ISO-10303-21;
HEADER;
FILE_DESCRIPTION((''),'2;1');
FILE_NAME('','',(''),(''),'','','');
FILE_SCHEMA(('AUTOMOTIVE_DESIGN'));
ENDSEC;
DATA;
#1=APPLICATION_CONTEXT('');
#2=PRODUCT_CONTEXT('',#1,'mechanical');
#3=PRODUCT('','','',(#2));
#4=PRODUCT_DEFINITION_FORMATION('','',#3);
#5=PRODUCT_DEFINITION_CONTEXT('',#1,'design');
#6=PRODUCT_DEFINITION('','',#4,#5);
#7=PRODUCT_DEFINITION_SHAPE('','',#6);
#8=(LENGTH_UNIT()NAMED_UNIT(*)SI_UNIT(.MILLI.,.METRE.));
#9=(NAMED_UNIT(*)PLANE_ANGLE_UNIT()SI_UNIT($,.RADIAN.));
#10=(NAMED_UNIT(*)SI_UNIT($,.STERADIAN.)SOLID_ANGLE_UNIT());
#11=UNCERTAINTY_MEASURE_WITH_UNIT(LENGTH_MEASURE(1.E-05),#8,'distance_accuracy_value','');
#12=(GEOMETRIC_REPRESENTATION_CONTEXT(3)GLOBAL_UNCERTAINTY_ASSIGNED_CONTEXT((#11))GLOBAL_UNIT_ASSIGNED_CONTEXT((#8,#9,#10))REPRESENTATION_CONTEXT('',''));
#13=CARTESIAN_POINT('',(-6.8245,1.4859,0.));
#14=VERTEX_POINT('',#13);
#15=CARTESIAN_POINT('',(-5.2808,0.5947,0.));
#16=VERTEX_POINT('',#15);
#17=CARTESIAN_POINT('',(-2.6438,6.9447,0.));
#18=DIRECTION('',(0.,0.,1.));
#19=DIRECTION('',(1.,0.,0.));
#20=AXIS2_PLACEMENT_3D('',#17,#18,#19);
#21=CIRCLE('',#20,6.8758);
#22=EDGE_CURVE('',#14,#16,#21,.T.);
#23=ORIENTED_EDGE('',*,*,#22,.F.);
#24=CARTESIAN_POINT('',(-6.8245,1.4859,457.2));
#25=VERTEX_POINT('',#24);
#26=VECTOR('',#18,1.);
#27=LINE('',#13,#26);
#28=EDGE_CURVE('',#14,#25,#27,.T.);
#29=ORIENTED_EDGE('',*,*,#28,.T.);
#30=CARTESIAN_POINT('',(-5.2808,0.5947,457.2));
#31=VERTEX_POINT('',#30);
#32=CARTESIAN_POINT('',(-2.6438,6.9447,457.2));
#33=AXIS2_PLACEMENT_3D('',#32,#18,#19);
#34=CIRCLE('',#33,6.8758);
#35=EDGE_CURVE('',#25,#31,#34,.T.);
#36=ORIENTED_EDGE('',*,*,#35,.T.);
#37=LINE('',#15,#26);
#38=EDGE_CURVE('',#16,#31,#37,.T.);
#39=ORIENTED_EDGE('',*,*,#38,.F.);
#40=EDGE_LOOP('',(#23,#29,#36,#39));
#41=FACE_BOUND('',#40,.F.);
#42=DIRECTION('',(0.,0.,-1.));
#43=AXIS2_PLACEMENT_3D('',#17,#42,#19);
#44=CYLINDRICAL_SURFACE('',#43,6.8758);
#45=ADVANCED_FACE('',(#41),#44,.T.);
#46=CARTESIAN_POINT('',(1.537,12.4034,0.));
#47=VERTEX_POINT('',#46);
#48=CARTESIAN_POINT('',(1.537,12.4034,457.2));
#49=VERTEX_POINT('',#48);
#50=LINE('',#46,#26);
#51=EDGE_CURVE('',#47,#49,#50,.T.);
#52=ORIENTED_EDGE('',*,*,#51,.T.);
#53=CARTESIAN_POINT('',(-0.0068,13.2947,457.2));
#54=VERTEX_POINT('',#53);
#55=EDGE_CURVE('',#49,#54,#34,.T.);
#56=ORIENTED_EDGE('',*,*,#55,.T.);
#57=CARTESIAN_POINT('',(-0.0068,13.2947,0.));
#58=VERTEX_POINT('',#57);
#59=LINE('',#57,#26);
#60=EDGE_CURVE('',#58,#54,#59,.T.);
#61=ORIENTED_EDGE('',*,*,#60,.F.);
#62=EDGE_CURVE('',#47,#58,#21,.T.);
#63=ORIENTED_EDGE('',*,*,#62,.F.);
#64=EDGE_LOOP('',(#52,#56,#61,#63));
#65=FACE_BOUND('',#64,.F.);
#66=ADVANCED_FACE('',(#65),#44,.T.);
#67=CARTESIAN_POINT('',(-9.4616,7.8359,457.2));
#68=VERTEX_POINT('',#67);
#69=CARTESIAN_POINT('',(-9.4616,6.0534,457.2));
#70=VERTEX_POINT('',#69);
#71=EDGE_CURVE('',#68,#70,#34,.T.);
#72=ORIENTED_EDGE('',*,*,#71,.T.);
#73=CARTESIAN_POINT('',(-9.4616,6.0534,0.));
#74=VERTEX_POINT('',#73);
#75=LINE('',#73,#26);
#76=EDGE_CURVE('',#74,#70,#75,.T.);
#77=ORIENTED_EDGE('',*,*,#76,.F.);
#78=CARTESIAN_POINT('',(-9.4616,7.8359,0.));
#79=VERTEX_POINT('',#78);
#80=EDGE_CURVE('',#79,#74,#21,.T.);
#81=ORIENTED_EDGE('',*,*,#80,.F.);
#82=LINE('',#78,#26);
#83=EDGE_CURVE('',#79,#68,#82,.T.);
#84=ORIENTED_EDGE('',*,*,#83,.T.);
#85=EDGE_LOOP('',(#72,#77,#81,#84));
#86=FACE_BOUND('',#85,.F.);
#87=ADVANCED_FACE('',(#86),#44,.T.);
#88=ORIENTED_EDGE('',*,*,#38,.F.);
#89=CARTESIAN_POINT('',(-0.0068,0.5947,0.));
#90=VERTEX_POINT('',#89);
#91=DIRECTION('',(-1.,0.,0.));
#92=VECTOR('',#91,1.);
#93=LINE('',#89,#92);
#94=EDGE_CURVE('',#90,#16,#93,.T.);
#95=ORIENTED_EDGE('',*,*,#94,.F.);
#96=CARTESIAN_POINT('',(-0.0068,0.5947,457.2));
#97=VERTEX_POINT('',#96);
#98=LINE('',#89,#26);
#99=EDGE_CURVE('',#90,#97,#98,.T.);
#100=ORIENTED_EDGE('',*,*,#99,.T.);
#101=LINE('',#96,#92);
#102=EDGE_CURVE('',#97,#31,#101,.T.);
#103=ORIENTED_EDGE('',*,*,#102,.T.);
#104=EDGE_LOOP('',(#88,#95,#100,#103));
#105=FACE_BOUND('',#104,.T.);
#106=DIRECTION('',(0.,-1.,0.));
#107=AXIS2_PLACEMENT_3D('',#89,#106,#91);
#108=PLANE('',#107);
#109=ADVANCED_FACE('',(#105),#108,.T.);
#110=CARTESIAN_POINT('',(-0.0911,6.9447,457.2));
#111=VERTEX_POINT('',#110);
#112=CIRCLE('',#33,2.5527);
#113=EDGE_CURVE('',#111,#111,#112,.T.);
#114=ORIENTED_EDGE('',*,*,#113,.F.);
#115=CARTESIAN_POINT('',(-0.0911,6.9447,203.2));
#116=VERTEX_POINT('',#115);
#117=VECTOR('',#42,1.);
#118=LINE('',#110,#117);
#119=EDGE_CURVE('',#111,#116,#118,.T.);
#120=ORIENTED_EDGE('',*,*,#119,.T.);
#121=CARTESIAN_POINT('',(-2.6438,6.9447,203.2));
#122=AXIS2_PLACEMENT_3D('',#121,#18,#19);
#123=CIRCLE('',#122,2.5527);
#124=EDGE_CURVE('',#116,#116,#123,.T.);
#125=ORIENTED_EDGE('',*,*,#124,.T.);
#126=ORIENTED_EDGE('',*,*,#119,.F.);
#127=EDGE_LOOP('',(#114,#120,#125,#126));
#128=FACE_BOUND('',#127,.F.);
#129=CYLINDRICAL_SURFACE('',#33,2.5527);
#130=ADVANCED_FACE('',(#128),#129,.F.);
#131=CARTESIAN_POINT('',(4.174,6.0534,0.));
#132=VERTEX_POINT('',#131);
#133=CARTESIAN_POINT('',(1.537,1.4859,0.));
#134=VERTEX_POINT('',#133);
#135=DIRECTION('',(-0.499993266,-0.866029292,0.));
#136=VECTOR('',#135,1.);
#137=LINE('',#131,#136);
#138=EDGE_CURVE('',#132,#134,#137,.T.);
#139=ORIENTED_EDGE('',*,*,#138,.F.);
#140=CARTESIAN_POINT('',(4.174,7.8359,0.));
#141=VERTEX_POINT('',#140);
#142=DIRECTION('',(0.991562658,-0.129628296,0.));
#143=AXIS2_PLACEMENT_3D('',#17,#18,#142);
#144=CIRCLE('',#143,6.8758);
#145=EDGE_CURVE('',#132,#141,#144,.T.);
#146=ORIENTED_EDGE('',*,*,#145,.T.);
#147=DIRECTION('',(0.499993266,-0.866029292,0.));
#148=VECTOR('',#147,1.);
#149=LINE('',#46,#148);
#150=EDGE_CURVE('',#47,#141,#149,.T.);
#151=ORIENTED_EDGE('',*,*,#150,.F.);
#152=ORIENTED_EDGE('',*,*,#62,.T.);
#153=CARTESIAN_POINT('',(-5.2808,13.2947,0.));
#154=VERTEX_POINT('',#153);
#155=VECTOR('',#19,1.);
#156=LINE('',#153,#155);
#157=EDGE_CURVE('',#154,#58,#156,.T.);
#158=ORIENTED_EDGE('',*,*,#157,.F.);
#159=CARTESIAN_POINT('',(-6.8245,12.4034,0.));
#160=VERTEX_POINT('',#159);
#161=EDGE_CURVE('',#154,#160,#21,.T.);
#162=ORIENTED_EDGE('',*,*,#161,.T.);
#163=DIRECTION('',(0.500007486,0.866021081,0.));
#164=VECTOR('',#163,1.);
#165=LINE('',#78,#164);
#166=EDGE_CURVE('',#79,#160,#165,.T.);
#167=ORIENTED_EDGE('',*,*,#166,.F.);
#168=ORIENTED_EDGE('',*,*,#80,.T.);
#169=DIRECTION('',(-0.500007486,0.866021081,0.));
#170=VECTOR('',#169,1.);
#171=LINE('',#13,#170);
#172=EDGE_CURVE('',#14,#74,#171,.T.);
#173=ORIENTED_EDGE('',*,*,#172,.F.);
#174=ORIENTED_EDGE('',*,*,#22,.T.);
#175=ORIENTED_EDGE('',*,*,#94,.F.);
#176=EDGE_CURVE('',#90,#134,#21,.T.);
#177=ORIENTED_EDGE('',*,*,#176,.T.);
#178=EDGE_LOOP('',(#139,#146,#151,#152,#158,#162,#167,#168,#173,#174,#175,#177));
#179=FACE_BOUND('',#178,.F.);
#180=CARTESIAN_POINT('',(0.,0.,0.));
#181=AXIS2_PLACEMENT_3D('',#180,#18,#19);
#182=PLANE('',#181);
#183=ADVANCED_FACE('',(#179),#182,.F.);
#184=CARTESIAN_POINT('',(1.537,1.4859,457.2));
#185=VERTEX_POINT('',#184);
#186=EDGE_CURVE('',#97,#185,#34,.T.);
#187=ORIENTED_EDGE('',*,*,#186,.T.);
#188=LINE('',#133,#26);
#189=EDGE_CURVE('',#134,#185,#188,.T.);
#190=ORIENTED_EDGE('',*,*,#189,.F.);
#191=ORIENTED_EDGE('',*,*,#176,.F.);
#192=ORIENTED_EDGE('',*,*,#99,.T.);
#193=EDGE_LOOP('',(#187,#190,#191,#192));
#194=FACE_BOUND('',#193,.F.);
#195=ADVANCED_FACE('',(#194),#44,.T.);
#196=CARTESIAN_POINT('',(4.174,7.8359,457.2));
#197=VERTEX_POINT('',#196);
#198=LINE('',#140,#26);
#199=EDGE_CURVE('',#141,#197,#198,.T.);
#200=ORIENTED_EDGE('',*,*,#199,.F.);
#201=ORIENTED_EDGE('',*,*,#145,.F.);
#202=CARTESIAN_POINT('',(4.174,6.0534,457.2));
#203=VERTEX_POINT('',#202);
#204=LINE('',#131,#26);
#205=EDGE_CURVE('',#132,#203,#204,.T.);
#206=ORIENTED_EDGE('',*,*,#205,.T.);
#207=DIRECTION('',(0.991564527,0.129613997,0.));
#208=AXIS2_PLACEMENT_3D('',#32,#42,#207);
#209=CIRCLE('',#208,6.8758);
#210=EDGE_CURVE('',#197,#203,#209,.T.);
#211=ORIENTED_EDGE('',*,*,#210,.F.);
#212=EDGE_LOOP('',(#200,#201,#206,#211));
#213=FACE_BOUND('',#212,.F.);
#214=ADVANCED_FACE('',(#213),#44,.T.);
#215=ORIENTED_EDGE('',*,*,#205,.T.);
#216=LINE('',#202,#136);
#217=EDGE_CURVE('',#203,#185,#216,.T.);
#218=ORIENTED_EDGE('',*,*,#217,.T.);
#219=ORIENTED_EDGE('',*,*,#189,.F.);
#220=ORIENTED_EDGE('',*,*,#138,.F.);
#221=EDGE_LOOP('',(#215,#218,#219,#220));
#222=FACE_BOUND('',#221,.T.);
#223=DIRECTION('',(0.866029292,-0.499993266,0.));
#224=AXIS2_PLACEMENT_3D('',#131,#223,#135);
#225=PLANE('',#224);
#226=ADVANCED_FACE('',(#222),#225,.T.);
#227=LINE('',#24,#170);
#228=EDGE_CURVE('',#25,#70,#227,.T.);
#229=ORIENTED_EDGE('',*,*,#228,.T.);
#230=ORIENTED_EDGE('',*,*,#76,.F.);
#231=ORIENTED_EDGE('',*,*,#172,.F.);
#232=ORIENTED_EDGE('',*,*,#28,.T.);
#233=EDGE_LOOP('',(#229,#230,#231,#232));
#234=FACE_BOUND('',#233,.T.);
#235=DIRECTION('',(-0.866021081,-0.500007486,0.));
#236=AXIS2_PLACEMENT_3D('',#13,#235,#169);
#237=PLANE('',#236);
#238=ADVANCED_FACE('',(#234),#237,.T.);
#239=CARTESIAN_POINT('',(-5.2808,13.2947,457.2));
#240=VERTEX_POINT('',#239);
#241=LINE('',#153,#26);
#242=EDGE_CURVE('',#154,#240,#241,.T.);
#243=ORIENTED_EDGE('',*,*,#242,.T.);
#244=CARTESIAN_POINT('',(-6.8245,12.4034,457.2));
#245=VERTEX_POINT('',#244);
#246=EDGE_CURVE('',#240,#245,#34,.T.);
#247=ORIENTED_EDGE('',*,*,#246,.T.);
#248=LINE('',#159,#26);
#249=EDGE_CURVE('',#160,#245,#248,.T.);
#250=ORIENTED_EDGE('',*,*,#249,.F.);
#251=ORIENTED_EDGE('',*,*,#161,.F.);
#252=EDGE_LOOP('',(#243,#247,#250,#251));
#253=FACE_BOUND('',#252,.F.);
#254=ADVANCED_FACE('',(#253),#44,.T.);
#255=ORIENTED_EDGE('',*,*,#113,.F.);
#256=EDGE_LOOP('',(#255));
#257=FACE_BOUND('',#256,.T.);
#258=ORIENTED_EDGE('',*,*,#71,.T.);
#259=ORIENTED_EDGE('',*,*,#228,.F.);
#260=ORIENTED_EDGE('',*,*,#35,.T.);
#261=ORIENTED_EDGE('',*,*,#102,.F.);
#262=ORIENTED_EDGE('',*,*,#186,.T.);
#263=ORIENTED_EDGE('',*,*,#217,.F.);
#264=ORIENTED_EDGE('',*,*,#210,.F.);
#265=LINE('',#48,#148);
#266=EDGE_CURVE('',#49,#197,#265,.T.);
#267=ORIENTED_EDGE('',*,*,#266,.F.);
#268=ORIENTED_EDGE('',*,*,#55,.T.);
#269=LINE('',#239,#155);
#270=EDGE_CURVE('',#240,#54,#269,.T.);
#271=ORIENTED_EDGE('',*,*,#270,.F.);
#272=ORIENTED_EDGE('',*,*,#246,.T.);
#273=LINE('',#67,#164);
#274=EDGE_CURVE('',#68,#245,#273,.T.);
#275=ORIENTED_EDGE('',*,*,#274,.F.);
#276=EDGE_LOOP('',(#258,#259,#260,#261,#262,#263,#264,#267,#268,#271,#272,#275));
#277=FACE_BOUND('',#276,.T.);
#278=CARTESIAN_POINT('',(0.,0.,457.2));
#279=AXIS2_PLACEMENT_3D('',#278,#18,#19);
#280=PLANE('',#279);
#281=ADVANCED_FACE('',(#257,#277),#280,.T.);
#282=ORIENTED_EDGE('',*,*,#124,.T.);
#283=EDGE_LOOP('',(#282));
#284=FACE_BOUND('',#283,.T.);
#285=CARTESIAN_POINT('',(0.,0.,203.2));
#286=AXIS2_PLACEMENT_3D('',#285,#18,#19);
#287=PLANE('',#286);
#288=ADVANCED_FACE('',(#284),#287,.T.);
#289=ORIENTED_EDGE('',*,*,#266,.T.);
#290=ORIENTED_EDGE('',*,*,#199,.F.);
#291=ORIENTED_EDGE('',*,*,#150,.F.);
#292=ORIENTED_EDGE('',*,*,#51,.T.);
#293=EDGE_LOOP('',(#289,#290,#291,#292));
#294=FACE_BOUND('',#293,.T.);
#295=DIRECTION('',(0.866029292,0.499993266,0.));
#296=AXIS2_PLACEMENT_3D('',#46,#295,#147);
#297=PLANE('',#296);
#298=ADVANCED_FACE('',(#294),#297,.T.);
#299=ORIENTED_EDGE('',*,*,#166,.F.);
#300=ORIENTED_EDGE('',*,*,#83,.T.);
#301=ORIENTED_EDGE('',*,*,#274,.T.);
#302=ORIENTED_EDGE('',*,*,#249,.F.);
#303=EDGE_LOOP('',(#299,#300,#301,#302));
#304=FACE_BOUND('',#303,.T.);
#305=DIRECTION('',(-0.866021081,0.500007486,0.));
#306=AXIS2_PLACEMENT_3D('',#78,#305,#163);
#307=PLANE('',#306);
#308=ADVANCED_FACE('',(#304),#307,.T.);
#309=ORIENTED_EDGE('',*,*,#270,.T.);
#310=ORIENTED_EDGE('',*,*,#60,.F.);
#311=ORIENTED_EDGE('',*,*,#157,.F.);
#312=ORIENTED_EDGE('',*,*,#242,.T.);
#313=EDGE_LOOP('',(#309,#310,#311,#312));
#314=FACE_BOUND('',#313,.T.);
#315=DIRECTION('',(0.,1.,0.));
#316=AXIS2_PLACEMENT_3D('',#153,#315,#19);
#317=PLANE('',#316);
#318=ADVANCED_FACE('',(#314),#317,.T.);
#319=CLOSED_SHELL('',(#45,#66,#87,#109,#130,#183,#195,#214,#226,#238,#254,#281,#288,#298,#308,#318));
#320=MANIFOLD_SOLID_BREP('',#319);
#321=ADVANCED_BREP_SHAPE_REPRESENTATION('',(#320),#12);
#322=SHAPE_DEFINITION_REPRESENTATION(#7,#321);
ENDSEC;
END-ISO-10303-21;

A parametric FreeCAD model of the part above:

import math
import FreeCAD as App
import Part
import Sketcher
from FreeCAD import Vector
Q = App.Units.Quantity

doc = App.newDocument("Part")
params = doc.addObject("Spreadsheet::Sheet", "Params")
for row, (alias, value) in enumerate([
    ("pad1_length", "18 in"),
    ("sketch2_diameter", "0.201 in"),
    ("pocket1_length", "10 in"),
], start=1):
    params.set(f"A{row}", alias)
    params.set(f"B{row}", "=" + value)
    params.setAlias(f"B{row}", alias)

body = doc.addObject("PartDesign::Body", "Body")

# Sketch on XY plane
sketch1 = body.newObject("Sketcher::SketchObject", "Sketch")
sketch1.AttachmentSupport = (doc.getObject("XY_Plane"), [""])
sketch1.MapMode = "FlatFace"
sketch1.addGeometry([
    Part.ArcOfCircle(Part.Circle(Vector(-2.6, 6.9, 0), Vector(0, 0, 1), 6.9), math.radians(-7.45), math.radians(7.45)),  # 0
    Part.LineSegment(Vector(4.2, 7.8, 0), Vector(1.5, 12.4, 0)),  # 1
    Part.ArcOfCircle(Part.Circle(Vector(-2.6, 6.9, 0), Vector(0, 0, 1), 6.9), math.radians(52.55), math.radians(67.45)),  # 2
    Part.LineSegment(Vector(0, 13.3, 0), Vector(-5.3, 13.3, 0)),  # 3
    Part.ArcOfCircle(Part.Circle(Vector(-2.6, 6.9, 0), Vector(0, 0, 1), 6.9), math.radians(112.55), math.radians(127.45)),  # 4
    Part.LineSegment(Vector(-6.8, 12.4, 0), Vector(-9.5, 7.8, 0)),  # 5
    Part.ArcOfCircle(Part.Circle(Vector(-2.6, 6.9, 0), Vector(0, 0, 1), 6.9), math.radians(172.55), math.radians(187.45)),  # 6
    Part.LineSegment(Vector(-9.5, 6.1, 0), Vector(-6.8, 1.5, 0)),  # 7
    Part.ArcOfCircle(Part.Circle(Vector(-2.6, 6.9, 0), Vector(0, 0, 1), 6.9), math.radians(-127.45), math.radians(-112.55)),  # 8
    Part.LineSegment(Vector(-5.3, 0.6, 0), Vector(0, 0.6, 0)),  # 9
    Part.ArcOfCircle(Part.Circle(Vector(-2.6, 6.9, 0), Vector(0, 0, 1), 6.9), math.radians(-67.45), math.radians(-52.55)),  # 10
    Part.LineSegment(Vector(1.5, 1.5, 0), Vector(4.2, 6.1, 0)),  # 11
], False)
sketch1.addConstraint([
    Sketcher.Constraint("Coincident", 0, 2, 1, 1),
    Sketcher.Constraint("Coincident", 1, 2, 2, 1),
    Sketcher.Constraint("Coincident", 2, 2, 3, 1),
    Sketcher.Constraint("Coincident", 3, 2, 4, 1),
    Sketcher.Constraint("Coincident", 4, 2, 5, 1),
    Sketcher.Constraint("Coincident", 5, 2, 6, 1),
    Sketcher.Constraint("Coincident", 6, 2, 7, 1),
    Sketcher.Constraint("Coincident", 7, 2, 8, 1),
    Sketcher.Constraint("Coincident", 8, 2, 9, 1),
    Sketcher.Constraint("Coincident", 9, 2, 10, 1),
    Sketcher.Constraint("Coincident", 10, 2, 11, 1),
    Sketcher.Constraint("Coincident", 11, 2, 0, 1),
    Sketcher.Constraint("Horizontal", 3),
    Sketcher.Constraint("Horizontal", 9),
    Sketcher.Constraint("Coincident", 2, 3, 0, 3),
    Sketcher.Constraint("Coincident", 4, 3, 0, 3),
    Sketcher.Constraint("Coincident", 6, 3, 0, 3),
    Sketcher.Constraint("Coincident", 8, 3, 0, 3),
    Sketcher.Constraint("Coincident", 10, 3, 0, 3),
    Sketcher.Constraint("Equal", 0, 2),
    Sketcher.Constraint("Equal", 2, 4),
    Sketcher.Constraint("Equal", 4, 6),
    Sketcher.Constraint("Equal", 6, 8),
    Sketcher.Constraint("Equal", 8, 10),
    Sketcher.Constraint("Parallel", 1, 7),
    Sketcher.Constraint("Parallel", 5, 11),
    Sketcher.Constraint("Horizontal", 1, 2, 4, 2),
    Sketcher.Constraint("Horizontal", 0, 2, 5, 2),
    Sketcher.Constraint("Horizontal", 7, 2, 10, 2),
    Sketcher.Constraint("Vertical", 5, 2, 6, 2),
    Sketcher.Constraint("Vertical", 3, 2, 8, 2),
    Sketcher.Constraint("Radius", 0, Q("0.2707 in")),
    Sketcher.Constraint("Angle", 1, Q("119.9996 deg")),
    Sketcher.Constraint("DistanceY", 0, 3, 2, 2, Q("0.25 in")),
    Sketcher.Constraint("DistanceY", 10, 2, 0, 2, Q("0.25 in")),
    Sketcher.Constraint("DistanceY", -1, 1, 0, 2, Q("0.3085 in")),
    Sketcher.Constraint("DistanceX", -1, 1, 1, 2, Q("0.0605 in")),
])
pad1 = body.newObject("PartDesign::Pad", "Pad")
pad1.Profile = sketch1
pad1.setExpression("Length", "Params.pad1_length")

# Sketch on XY plane
sketch2 = body.newObject("Sketcher::SketchObject", "Sketch001")
sketch2.AttachmentSupport = (doc.getObject("XY_Plane"), [""])
sketch2.MapMode = "FlatFace"
sketch2.AttachmentOffset = App.Placement(Vector(0, 0, 18 * 25.4), App.Rotation())
sketch2.addGeometry(Part.Circle(Vector(-2.6, 6.9, 0), Vector(0, 0, 1), 2.6), False)
sketch2.addConstraint([
    Sketcher.Constraint("Diameter", 0, Q("0.201 in")),
    Sketcher.Constraint("DistanceX", 0, 3, -1, 1, 2.6438),
    Sketcher.Constraint("DistanceY", -1, 1, 0, 3, 6.9447),
])
sketch2.setExpression("Constraints[0]", "Params.sketch2_diameter")
pocket1 = body.newObject("PartDesign::Pocket", "Pocket")
pocket1.Profile = sketch2
pocket1.setExpression("Length", "Params.pocket1_length")

doc.recompute()
